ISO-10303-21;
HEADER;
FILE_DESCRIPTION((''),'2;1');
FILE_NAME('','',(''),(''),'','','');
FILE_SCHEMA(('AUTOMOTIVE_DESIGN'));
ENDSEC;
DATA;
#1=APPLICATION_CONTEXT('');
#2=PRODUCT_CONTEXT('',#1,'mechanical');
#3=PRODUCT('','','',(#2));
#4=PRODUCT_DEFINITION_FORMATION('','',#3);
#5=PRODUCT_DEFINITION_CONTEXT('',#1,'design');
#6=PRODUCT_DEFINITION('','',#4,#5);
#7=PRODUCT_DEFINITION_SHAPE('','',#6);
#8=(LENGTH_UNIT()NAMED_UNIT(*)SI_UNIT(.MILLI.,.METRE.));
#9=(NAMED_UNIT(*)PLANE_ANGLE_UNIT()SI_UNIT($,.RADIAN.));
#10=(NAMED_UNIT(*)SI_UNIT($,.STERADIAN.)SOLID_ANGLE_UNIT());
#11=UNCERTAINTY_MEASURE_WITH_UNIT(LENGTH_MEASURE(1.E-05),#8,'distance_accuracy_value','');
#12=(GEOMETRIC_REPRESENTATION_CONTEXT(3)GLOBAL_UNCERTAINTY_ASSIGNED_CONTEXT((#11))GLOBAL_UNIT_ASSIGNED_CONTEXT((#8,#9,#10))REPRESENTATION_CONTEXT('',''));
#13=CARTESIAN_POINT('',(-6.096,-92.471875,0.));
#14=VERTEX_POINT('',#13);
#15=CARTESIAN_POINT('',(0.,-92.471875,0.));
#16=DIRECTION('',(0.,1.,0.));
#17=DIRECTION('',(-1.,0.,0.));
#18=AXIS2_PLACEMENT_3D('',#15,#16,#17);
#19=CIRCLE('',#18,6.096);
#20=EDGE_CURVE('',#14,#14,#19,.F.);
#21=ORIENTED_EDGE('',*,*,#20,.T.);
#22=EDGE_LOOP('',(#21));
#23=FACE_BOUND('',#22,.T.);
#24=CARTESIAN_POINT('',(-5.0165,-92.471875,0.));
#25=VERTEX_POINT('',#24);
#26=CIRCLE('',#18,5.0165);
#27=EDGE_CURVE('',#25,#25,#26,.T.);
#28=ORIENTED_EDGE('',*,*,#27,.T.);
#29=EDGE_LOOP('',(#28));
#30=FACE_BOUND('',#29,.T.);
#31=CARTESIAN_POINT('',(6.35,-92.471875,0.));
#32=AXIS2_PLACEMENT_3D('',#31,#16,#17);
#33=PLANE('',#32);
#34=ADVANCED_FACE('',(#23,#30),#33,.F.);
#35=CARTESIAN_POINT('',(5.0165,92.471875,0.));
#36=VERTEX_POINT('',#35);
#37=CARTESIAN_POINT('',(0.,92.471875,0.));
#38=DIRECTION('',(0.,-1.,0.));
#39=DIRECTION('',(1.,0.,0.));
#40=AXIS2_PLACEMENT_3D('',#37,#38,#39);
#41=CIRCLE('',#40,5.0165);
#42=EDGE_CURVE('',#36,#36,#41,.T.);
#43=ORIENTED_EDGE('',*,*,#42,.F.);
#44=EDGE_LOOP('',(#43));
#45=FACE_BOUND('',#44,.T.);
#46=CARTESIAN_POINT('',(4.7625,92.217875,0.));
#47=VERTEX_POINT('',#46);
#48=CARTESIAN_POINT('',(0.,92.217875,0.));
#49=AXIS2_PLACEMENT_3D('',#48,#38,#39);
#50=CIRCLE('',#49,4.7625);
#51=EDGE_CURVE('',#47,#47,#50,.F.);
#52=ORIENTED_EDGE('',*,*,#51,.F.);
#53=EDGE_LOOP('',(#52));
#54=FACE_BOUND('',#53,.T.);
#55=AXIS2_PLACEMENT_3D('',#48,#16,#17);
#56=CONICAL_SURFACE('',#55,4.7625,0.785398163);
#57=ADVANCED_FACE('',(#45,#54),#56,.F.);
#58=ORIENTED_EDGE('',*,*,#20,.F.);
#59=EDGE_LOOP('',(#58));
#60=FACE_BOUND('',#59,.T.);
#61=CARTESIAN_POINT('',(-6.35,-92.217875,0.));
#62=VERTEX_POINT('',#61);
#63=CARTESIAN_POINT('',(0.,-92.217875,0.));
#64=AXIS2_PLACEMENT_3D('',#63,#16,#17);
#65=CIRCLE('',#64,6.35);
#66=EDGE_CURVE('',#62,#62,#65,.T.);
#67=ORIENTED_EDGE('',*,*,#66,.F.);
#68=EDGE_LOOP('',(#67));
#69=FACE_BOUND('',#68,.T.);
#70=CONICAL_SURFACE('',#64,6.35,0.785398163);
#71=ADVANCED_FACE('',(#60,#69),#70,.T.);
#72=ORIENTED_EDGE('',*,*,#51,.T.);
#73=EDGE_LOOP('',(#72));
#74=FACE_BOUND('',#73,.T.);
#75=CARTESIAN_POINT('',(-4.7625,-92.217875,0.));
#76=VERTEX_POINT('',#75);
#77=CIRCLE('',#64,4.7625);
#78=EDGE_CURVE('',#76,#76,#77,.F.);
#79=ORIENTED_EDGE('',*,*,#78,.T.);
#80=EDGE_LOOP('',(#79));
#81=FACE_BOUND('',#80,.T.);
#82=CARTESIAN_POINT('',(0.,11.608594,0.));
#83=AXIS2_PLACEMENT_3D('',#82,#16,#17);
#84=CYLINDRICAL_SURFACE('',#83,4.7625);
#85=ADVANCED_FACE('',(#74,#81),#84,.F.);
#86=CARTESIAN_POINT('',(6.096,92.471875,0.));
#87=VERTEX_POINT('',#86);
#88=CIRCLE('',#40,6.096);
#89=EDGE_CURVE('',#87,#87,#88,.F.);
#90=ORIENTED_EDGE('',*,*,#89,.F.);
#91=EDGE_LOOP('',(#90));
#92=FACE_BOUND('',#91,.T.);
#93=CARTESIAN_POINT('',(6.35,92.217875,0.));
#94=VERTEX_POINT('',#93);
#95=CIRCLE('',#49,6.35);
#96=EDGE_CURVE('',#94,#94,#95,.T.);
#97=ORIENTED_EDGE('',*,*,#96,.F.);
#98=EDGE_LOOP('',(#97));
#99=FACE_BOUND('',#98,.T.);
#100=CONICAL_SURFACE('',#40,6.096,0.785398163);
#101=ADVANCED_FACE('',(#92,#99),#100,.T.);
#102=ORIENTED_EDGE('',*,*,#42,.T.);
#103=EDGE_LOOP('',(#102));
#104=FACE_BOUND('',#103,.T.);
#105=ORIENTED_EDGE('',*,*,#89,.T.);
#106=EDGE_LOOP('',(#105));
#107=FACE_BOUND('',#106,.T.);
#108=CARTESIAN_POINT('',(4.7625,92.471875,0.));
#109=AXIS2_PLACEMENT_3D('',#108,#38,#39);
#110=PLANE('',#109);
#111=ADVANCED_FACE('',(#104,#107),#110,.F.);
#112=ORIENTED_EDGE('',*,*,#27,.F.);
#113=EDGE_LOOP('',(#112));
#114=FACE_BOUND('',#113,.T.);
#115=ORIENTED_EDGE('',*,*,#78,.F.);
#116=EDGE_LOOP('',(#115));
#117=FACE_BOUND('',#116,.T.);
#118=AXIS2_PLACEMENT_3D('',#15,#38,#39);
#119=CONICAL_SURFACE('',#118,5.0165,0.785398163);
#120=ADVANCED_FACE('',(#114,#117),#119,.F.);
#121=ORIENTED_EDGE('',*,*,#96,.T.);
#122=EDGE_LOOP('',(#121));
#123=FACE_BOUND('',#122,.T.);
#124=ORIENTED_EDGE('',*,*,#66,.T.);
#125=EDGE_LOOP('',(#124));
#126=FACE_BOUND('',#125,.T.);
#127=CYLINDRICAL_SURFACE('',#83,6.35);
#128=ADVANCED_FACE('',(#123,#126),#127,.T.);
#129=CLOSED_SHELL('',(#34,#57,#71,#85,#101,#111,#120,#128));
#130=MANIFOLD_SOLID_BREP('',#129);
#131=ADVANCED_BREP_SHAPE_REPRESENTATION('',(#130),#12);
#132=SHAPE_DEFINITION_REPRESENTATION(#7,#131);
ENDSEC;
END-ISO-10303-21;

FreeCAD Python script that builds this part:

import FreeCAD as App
import Part
import Sketcher
Q = App.Units.Quantity


def edges_at(feature, points):
    """Names of the edges that pass closest to the given points."""
    edges = feature.Shape.Edges
    near = lambda p: min(range(len(edges)), key=lambda i: edges[i].distToShape(Part.Vertex(*p))[0])
    return sorted({f"Edge{near(p) + 1}" for p in points})

doc = App.newDocument("Part")
body = doc.addObject("PartDesign::Body", "Body")

# Sketch on XY plane
sketch1 = body.newObject("Sketcher::SketchObject", "Sketch")
sketch1.AttachmentSupport = (doc.getObject("XY_Plane"), [""])
sketch1.MapMode = "FlatFace"
sketch1.addGeometry([
    Part.LineSegment(App.Vector(4.8, 92.5, 0), App.Vector(4.8, -92.5, 0)),
    Part.LineSegment(App.Vector(4.8, -92.5, 0), App.Vector(6.3, -92.5, 0)),
    Part.LineSegment(App.Vector(6.3, -92.5, 0), App.Vector(6.3, 92.5, 0)),
    Part.LineSegment(App.Vector(6.3, 92.5, 0), App.Vector(4.8, 92.5, 0)),
], False)
sketch1.addConstraint([
    Sketcher.Constraint("Coincident", 0, 2, 1, 1),
    Sketcher.Constraint("Coincident", 1, 2, 2, 1),
    Sketcher.Constraint("Coincident", 2, 2, 3, 1),
    Sketcher.Constraint("Coincident", 3, 2, 0, 1),
    Sketcher.Constraint("Vertical", 0),
    Sketcher.Constraint("Horizontal", 1),
    Sketcher.Constraint("Vertical", 2),
    Sketcher.Constraint("Horizontal", 3),
    Sketcher.Constraint("DistanceX", 1, 1, 1, 2, Q("0.0625 in")),
    Sketcher.Constraint("DistanceY", 0, 2, 0, 1, Q("7.28125 in")),
    Sketcher.Constraint("DistanceX", -1, 1, 1, 2, Q("0.25 in")),
    Sketcher.Constraint("DistanceY", 0, 2, -1, 1, Q("3.640625 in")),
])
revolution = body.newObject("PartDesign::Revolution", "Revolution")
revolution.Profile = sketch1
revolution.ReferenceAxis = (sketch1, ["V_Axis"])
revolution.Angle = 360
doc.recompute()

chamfer = body.newObject("PartDesign::Chamfer", "Chamfer")
chamfer.Base = (revolution, edges_at(revolution, [
    (-4.763, -92.472, 0),
    (-6.35, -92.472, 0),
    (-6.35, 92.472, 0),
    (-4.763, 92.472, 0),
]))
chamfer.Size = Q("0.01 in")

doc.recompute()
